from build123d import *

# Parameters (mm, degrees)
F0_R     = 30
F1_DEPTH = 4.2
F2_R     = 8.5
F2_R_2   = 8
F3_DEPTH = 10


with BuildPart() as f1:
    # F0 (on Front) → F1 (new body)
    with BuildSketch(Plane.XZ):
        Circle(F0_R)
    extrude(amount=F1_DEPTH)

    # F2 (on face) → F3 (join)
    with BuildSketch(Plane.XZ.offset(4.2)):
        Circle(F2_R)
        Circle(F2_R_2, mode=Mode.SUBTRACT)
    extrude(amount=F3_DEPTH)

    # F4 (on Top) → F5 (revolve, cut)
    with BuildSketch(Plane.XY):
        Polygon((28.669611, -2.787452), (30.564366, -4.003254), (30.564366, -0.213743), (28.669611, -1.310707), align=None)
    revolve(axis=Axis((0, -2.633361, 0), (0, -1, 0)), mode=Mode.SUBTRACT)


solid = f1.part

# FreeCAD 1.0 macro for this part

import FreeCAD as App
import Part
import Sketcher
from FreeCAD import Vector


def add_polygon(sketch, points):
    """Adds a closed chain of lines whose ends are joined by coincident constraints."""
    first, n = sketch.GeometryCount, len(points)
    for a, b in zip(points, points[1:] + points[:1]):
        sketch.addGeometry(Part.LineSegment(App.Vector(*a, 0), App.Vector(*b, 0)), False)
    for i in range(n):
        sketch.addConstraint(Sketcher.Constraint("Coincident", first + i, 2, first + (i + 1) % n, 1))

doc = App.newDocument("Part")
body = doc.addObject("PartDesign::Body", "Body")

# Sketch on XZ plane
sketch1 = doc.addObject("Sketcher::SketchObject", "Sketch")
body.addObject(sketch1)
sketch1.AttachmentSupport = (doc.XZ_Plane, [""])
sketch1.MapMode = "FlatFace"
sketch1.addGeometry(Part.Circle(Vector(0, 0, 0), Vector(0, 0, 1), 30), False)
sketch1.addConstraint([
    Sketcher.Constraint("Coincident", 0, 3, -1, 1),
    Sketcher.Constraint("Diameter", 0, 60.0),
])
pad1 = doc.addObject("PartDesign::Pad", "Pad")
body.addObject(pad1)
pad1.Profile = sketch1
pad1.Length = 4.2

# Sketch on XZ plane
sketch2 = doc.addObject("Sketcher::SketchObject", "Sketch001")
body.addObject(sketch2)
sketch2.AttachmentSupport = (doc.XZ_Plane, [""])
sketch2.MapMode = "FlatFace"
sketch2.AttachmentOffset = App.Placement(Vector(0, 0, 4.2), App.Rotation())
sketch2.addGeometry([
    Part.Circle(Vector(0, 0, 0), Vector(0, 0, 1), 8),
    Part.Circle(Vector(0, 0, 0), Vector(0, 0, 1), 8),
], False)
sketch2.addConstraint([
    Sketcher.Constraint("Coincident", 0, 3, -1, 1),
    Sketcher.Constraint("Coincident", 1, 3, -1, 1),
    Sketcher.Constraint("Diameter", 0, 17.0),
    Sketcher.Constraint("Diameter", 1, 16.0),
])
pad2 = doc.addObject("PartDesign::Pad", "Pad001")
body.addObject(pad2)
pad2.Profile = sketch2
pad2.Length = 10

# Sketch on XY plane
sketch3 = doc.addObject("Sketcher::SketchObject", "Sketch002")
body.addObject(sketch3)
sketch3.AttachmentSupport = (doc.XY_Plane, [""])
sketch3.MapMode = "FlatFace"
add_polygon(sketch3, [(28.7, -2.8), (30.6, -4), (30.6, -0.2), (28.7, -1.3)])  # lines 0-3
sketch3.addConstraint([
    Sketcher.Constraint("Vertical", 1),
    Sketcher.Constraint("Vertical", 3),
    Sketcher.Constraint("DistanceY", 1, 1, 1, 2, 3.789511),
    Sketcher.Constraint("Distance", 2, 2.18939),
    Sketcher.Constraint("DistanceY", 3, 2, 3, 1, 1.476745),
    Sketcher.Constraint("DistanceX", -1, 1, 2, 2, 28.669611),
    Sketcher.Constraint("DistanceY", 3, 2, -1, 1, 2.787452),
    Sketcher.Constraint("DistanceY", 3, 2, 1, 2, 2.573709),
])
groove = doc.addObject("PartDesign::Groove", "Groove")
body.addObject(groove)
groove.Profile = sketch3
groove.ReferenceAxis = (sketch3, ["V_Axis"])
groove.Angle = 360

doc.recompute()
